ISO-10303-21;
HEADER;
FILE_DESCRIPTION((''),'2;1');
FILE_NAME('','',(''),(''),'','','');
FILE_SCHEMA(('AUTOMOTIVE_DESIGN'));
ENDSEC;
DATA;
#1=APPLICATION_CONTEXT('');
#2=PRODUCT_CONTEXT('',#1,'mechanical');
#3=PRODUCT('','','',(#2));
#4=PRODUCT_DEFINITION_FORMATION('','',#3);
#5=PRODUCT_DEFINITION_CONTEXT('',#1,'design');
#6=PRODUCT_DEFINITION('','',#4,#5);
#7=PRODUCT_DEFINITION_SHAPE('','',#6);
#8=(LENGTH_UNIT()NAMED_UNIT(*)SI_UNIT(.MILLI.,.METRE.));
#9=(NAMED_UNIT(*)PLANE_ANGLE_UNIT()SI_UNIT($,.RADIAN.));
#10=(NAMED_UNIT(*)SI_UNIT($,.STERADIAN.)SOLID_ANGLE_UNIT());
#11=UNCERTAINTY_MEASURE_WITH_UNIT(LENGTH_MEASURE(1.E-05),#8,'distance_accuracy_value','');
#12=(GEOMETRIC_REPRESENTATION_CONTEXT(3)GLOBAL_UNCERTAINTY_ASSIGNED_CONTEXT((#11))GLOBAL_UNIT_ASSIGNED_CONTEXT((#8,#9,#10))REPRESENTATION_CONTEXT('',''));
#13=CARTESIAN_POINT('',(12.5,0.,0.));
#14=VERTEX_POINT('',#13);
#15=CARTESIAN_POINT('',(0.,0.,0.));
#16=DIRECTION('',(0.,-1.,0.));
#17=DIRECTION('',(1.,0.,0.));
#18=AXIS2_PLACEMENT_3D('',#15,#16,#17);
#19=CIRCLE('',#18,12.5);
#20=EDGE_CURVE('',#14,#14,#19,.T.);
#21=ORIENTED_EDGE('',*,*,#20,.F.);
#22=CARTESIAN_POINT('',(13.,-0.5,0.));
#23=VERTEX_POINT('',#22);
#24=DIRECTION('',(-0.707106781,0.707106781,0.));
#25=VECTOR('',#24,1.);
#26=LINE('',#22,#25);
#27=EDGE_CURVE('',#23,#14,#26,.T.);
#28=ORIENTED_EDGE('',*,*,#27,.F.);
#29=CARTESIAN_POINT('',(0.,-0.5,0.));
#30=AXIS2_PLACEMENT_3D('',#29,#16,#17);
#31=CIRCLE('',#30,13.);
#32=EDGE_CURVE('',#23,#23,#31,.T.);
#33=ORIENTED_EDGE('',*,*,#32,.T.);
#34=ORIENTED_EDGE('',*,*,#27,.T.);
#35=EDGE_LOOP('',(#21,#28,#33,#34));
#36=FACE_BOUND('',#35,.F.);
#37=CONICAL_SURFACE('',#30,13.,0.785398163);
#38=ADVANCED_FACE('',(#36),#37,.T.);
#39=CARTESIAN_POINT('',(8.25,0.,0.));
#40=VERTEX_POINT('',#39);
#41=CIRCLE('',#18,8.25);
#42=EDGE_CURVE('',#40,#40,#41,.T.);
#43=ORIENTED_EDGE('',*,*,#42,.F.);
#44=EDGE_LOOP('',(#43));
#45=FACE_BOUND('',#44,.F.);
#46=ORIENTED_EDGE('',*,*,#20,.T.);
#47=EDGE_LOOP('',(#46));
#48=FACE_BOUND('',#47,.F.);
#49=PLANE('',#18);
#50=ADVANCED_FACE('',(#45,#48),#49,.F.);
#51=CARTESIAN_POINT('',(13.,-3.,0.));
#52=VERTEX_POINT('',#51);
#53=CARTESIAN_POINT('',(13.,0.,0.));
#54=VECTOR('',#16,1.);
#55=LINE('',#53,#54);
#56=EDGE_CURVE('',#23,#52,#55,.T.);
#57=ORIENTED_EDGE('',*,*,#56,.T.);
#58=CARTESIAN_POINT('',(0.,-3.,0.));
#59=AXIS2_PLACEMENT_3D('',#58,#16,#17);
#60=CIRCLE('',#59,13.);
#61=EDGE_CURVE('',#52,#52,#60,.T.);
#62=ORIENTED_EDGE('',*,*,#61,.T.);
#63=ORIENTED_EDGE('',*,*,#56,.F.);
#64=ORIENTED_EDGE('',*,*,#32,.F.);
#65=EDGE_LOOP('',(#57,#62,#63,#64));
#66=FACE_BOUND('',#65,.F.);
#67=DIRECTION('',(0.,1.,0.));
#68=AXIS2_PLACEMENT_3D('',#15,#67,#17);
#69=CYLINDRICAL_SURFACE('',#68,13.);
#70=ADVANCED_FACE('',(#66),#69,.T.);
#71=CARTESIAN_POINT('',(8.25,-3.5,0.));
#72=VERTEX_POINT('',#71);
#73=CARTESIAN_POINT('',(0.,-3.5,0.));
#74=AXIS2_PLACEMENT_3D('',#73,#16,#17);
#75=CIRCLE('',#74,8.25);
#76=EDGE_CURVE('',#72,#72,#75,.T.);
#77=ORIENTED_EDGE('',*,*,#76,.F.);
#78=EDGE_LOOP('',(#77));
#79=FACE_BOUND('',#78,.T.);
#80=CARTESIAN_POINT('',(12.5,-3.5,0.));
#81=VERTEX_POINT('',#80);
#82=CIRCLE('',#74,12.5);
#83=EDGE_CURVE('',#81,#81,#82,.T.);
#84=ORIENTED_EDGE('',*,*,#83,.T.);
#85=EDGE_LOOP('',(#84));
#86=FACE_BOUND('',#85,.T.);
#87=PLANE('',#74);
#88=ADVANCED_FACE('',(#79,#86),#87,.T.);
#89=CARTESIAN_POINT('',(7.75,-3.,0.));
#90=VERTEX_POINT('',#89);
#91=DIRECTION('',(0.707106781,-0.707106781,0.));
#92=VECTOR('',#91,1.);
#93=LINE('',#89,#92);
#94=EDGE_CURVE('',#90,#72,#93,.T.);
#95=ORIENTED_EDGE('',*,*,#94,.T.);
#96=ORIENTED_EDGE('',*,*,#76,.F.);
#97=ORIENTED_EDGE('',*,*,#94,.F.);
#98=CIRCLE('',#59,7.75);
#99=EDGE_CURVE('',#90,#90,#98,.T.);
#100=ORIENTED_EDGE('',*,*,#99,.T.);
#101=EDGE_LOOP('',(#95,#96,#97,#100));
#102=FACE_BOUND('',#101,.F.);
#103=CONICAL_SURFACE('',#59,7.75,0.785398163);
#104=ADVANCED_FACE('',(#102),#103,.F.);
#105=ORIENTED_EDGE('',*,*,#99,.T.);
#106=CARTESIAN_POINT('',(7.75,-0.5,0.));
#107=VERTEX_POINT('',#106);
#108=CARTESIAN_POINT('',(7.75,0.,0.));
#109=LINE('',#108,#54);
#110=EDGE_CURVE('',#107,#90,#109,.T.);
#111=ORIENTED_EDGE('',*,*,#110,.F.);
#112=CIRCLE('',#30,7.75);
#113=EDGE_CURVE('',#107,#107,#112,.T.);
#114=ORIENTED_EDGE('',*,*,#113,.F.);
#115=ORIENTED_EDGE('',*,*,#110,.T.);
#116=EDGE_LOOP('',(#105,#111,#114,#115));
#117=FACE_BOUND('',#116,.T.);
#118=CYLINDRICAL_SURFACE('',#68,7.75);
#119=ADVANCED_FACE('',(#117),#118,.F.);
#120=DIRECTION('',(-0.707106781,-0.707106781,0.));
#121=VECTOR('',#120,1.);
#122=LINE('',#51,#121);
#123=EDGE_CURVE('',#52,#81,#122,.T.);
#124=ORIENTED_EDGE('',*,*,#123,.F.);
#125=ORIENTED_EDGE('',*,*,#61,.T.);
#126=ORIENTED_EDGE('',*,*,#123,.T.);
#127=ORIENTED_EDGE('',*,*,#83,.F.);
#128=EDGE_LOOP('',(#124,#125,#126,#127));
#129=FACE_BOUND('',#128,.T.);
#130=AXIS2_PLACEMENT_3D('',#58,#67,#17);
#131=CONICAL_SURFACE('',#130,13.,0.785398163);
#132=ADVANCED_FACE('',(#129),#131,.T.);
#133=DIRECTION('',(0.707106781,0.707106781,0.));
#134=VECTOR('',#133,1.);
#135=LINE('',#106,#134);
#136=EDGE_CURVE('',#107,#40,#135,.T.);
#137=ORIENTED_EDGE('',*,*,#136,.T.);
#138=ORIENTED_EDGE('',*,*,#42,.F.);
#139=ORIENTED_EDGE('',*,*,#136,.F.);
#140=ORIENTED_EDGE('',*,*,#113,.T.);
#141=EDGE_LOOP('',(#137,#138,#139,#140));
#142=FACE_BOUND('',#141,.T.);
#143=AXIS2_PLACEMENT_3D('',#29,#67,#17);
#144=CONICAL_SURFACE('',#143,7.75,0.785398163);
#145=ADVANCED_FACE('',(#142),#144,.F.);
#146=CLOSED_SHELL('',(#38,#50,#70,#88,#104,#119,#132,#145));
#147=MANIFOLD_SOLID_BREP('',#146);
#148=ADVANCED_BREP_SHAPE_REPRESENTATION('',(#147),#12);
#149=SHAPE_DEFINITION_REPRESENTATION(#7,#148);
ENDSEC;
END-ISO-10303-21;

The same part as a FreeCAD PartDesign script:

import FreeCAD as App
import Part
import Sketcher
Q = App.Units.Quantity


def edges_at(feature, points):
    """Names of the edges that pass closest to the given points."""
    edges = feature.Shape.Edges
    near = lambda p: min(range(len(edges)), key=lambda i: edges[i].distToShape(Part.Vertex(*p))[0])
    return sorted({f"Edge{near(p) + 1}" for p in points})

doc = App.newDocument("Part")
params = doc.addObject("Spreadsheet::Sheet", "Params")
for row, (alias, value) in enumerate([
    ("sketch1_diameter", "26 mm"),
    ("sketch1_diameter2", "15.5 mm"),
    ("pad1_length", "3.5 mm"),
    ("chamfer_size", "0.5 mm"),
    ("chamfer_size2", "0.5 mm"),
], start=1):
    params.set(f"A{row}", alias)
    params.set(f"B{row}", "=" + value)
    params.setAlias(f"B{row}", alias)

body = doc.addObject("PartDesign::Body", "Body")

sketch1 = doc.addObject("Sketcher::SketchObject", "Sketch")
body.addObject(sketch1)
sketch1.AttachmentSupport = (doc.XZ_Plane, [""])
sketch1.MapMode = "FlatFace"
sketch1.addGeometry(Part.Circle(App.Vector(0, 0, 0), App.Vector(0, 0, 1), 13), False)
sketch1.addGeometry(Part.Circle(App.Vector(0, 0, 0), App.Vector(0, 0, 1), 7.75), False)
sketch1.addConstraint(Sketcher.Constraint("Coincident", 0, 3, -1, 1))
sketch1.addConstraint(Sketcher.Constraint("Coincident", 1, 3, -1, 1))
sketch1.addConstraint(Sketcher.Constraint("Diameter", 0, Q("26 mm")))
sketch1.addConstraint(Sketcher.Constraint("Diameter", 1, Q("15.5 mm")))
sketch1.setExpression("Constraints[2]", "Params.sketch1_diameter")
sketch1.setExpression("Constraints[3]", "Params.sketch1_diameter2")
pad1 = doc.addObject("PartDesign::Pad", "Pad")
body.addObject(pad1)
pad1.Profile = sketch1
pad1.setExpression("Length", "Params.pad1_length")
doc.recompute()

chamfer = doc.addObject("PartDesign::Chamfer", "Chamfer")
body.addObject(chamfer)
chamfer.Base = (pad1, edges_at(pad1, [
    (-13, -3.5, 0),
    (-7.75, -3.5, 0),
    (-13, 0, 0),
    (-7.75, 0, 0),
]))
chamfer.ChamferType = "Two distances"
chamfer.setExpression("Size", "Params.chamfer_size")
chamfer.setExpression("Size2", "Params.chamfer_size2")

doc.recompute()
